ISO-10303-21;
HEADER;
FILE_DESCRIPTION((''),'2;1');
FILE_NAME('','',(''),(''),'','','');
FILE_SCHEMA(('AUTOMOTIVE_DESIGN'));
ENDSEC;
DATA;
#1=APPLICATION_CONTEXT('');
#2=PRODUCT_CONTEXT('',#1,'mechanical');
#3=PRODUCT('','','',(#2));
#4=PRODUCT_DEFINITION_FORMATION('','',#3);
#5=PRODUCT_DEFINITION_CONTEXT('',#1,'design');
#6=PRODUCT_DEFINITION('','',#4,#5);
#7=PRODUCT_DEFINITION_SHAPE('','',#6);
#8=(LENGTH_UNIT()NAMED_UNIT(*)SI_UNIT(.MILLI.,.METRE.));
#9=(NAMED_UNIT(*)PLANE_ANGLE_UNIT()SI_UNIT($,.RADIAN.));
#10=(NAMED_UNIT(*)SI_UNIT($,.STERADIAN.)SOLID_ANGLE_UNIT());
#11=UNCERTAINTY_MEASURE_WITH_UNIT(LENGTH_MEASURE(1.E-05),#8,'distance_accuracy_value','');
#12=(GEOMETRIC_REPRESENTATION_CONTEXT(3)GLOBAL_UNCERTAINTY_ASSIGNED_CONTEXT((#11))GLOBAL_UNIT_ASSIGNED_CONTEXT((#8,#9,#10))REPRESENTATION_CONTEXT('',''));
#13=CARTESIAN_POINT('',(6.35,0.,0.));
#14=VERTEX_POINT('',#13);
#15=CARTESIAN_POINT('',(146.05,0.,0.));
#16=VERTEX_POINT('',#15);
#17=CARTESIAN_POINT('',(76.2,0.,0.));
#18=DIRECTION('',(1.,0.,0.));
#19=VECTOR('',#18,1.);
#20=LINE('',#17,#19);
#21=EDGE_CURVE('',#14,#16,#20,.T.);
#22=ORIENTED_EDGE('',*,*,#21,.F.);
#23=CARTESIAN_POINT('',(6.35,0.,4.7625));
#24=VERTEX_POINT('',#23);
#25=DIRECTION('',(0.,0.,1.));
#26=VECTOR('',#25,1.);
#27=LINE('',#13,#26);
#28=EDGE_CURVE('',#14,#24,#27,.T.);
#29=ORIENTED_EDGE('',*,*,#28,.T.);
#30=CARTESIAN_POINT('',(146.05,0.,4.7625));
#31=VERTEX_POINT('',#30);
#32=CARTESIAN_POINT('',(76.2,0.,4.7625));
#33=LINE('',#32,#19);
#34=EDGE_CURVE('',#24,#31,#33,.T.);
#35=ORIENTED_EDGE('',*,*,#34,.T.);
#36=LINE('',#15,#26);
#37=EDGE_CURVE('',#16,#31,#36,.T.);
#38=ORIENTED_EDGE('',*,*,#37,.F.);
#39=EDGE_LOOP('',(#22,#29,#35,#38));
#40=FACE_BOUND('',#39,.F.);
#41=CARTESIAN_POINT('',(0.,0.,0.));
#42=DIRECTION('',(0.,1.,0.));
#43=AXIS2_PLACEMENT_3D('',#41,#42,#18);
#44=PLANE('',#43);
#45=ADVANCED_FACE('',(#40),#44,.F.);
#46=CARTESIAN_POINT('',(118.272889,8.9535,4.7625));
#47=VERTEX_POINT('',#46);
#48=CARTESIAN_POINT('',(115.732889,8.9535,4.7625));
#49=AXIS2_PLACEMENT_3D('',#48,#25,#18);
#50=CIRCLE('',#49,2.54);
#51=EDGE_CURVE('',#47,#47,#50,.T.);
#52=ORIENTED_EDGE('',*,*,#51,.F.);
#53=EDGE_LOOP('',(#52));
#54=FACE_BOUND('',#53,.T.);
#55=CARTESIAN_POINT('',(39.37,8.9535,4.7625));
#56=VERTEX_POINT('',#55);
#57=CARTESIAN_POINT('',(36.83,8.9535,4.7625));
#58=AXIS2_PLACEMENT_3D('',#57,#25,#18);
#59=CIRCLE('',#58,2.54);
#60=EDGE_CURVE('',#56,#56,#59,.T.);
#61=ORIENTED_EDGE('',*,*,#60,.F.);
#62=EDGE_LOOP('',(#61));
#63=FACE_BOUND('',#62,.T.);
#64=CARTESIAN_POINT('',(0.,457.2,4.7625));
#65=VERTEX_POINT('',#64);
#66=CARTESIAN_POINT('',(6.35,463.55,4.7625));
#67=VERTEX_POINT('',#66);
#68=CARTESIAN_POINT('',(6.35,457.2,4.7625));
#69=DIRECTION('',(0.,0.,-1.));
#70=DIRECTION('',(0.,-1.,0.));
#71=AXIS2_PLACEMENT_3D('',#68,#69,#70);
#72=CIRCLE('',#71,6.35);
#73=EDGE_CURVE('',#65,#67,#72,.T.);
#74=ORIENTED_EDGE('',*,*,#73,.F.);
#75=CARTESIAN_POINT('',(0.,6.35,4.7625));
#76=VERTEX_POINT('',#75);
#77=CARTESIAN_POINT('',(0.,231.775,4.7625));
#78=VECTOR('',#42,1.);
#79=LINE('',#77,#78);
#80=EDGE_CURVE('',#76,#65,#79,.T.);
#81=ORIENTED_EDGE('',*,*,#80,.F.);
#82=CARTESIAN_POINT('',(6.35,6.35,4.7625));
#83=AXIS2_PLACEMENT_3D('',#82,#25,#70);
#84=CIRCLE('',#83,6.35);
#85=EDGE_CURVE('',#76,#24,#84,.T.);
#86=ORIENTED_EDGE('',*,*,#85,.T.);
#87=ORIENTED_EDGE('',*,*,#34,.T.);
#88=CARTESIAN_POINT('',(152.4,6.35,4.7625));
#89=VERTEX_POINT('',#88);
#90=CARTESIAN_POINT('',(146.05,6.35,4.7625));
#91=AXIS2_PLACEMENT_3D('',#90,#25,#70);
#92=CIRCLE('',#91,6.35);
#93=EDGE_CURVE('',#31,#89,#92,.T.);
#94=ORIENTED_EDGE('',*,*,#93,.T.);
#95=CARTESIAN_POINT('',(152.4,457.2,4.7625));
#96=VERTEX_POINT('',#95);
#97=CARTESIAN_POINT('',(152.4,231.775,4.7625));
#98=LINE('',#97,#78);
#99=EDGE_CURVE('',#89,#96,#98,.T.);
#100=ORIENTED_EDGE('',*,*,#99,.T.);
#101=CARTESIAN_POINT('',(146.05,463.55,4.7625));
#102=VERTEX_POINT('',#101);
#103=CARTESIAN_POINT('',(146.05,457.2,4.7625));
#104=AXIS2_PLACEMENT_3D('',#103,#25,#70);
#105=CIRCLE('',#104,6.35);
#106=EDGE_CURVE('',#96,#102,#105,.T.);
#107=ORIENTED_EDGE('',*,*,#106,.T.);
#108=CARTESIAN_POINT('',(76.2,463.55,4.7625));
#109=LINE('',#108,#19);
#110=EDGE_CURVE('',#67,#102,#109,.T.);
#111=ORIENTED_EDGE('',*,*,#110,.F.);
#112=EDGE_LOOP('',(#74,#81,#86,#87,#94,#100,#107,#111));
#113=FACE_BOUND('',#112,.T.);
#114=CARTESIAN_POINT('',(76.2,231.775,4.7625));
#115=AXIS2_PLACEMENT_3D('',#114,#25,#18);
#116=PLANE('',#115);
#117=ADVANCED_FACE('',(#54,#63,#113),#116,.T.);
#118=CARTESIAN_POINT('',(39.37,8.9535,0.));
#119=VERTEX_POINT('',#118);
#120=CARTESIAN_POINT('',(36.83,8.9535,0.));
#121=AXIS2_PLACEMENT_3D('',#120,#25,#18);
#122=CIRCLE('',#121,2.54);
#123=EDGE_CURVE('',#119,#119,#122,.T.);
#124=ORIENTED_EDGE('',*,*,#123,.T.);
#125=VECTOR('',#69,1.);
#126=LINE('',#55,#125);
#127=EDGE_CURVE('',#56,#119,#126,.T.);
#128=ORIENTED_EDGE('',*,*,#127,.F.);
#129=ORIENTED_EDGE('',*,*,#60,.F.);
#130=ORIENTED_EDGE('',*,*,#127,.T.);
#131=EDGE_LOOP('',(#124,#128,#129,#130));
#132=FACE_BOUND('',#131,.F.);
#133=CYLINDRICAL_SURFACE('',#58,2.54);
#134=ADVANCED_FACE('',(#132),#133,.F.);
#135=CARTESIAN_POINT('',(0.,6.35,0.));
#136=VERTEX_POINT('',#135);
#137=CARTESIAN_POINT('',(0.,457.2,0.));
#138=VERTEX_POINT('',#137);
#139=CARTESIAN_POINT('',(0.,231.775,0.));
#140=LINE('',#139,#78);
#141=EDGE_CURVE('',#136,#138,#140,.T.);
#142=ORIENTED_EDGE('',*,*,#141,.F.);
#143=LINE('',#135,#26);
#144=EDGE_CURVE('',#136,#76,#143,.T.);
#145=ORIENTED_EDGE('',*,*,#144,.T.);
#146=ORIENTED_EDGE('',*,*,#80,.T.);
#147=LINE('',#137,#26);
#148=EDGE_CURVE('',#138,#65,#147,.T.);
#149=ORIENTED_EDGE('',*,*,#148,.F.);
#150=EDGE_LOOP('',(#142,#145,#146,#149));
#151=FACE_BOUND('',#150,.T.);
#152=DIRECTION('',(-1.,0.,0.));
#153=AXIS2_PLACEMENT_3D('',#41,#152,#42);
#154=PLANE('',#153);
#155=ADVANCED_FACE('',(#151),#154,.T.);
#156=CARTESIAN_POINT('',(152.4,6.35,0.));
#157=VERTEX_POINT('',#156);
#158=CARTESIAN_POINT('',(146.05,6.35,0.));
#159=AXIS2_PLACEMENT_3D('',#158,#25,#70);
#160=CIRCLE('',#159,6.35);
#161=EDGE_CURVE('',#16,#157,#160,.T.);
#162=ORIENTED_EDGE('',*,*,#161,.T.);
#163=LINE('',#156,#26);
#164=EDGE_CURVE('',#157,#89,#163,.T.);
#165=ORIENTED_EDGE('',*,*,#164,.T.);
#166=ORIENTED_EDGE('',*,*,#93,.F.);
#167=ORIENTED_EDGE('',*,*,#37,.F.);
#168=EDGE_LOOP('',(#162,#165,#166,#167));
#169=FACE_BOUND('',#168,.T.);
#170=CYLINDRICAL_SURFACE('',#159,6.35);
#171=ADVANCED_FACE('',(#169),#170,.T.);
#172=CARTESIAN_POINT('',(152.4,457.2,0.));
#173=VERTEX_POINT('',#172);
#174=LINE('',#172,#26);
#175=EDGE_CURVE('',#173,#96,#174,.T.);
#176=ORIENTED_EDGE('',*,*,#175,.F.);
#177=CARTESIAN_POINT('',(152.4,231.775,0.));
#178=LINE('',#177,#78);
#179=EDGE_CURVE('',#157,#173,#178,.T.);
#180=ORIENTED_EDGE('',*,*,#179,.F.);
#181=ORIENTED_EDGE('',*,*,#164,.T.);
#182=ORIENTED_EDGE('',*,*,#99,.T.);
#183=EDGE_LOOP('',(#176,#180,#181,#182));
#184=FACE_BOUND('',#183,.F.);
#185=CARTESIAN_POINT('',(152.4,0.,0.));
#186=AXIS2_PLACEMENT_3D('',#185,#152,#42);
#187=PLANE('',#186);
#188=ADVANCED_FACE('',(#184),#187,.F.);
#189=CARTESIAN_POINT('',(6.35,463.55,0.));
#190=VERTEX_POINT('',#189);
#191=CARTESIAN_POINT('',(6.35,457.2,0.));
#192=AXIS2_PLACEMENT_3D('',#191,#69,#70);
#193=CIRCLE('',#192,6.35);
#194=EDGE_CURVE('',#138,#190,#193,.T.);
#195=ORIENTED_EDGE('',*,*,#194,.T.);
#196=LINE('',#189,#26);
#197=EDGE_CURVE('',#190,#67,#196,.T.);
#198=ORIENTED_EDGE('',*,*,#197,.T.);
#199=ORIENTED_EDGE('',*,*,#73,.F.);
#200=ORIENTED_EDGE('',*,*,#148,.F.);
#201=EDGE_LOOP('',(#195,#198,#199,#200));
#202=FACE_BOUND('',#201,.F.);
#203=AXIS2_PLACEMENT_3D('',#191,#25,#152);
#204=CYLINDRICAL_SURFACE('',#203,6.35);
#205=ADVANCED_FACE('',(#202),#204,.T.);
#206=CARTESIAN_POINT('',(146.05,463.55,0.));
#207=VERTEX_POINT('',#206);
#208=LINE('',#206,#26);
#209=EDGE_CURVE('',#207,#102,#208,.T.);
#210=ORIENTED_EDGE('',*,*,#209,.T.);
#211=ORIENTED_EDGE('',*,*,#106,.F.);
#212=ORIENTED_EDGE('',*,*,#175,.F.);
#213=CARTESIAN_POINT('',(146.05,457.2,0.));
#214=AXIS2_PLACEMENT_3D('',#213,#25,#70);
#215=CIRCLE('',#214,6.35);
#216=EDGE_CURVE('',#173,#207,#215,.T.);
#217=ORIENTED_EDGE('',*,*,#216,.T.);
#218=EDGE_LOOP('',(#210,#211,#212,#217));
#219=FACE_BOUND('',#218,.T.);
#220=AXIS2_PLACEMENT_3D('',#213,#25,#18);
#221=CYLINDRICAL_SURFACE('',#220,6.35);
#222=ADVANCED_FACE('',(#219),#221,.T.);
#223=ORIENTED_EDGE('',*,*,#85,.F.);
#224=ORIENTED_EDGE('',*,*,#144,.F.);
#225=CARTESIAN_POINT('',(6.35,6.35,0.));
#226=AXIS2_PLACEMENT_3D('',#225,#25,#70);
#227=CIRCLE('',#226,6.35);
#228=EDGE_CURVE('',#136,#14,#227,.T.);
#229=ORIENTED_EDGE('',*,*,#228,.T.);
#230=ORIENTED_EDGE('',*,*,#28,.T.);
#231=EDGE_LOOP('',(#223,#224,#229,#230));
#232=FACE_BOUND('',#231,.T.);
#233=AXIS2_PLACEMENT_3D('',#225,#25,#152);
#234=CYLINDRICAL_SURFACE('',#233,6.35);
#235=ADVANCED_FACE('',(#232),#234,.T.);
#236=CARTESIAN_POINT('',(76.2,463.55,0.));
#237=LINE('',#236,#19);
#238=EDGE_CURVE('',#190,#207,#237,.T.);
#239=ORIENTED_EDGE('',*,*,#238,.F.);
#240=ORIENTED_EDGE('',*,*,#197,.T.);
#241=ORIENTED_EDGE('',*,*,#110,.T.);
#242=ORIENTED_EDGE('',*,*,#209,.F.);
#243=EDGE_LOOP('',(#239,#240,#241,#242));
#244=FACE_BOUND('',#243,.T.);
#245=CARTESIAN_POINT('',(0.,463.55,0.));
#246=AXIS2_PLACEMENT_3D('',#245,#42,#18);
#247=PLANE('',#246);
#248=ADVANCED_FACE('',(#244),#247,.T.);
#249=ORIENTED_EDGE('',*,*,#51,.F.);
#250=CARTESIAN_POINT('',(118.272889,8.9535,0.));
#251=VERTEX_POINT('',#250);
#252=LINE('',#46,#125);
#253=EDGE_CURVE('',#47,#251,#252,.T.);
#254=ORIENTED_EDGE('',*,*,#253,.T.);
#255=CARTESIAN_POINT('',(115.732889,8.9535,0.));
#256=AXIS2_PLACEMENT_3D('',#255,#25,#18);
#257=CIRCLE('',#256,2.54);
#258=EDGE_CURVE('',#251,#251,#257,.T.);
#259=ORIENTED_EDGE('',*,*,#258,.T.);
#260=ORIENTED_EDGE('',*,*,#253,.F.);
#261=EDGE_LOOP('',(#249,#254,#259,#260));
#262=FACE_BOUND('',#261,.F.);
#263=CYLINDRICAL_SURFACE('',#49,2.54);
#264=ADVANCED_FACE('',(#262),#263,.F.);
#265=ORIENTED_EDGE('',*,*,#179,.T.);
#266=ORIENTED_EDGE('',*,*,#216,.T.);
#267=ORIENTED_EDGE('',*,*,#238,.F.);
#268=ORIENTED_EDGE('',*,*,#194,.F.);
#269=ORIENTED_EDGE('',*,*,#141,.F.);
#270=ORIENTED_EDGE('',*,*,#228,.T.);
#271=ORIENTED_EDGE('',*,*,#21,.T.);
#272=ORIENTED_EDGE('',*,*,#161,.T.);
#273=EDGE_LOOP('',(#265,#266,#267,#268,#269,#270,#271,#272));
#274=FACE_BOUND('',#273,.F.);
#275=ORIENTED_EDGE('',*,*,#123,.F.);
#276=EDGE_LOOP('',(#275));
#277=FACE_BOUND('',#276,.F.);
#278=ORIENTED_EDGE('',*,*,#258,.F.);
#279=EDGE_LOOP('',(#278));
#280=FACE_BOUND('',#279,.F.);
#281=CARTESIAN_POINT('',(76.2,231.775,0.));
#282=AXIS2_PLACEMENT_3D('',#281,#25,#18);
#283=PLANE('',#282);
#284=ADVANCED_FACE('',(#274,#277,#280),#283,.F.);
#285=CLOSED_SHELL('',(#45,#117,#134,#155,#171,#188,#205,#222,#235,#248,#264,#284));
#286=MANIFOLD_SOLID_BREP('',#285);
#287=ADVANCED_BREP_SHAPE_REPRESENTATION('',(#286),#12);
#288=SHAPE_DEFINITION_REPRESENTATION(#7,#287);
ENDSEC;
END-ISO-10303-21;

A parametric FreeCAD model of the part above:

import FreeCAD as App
import Part
import Sketcher
from FreeCAD import Vector
Q = App.Units.Quantity


def edges_at(feature, points):
    """Names of the edges that pass closest to the given points."""
    edges = feature.Shape.Edges
    near = lambda p: min(range(len(edges)), key=lambda i: edges[i].distToShape(Part.Vertex(*p))[0])
    return sorted({f"Edge{near(p) + 1}" for p in points})


def add_polygon(sketch, points):
    """Adds a closed chain of lines whose ends are joined by coincident constraints."""
    first, n = sketch.GeometryCount, len(points)
    for a, b in zip(points, points[1:] + points[:1]):
        sketch.addGeometry(Part.LineSegment(App.Vector(*a, 0), App.Vector(*b, 0)), False)
    for i in range(n):
        sketch.addConstraint(Sketcher.Constraint("Coincident", first + i, 2, first + (i + 1) % n, 1))

doc = App.newDocument("Part")
body = doc.addObject("PartDesign::Body", "Body")

sketch1 = body.newObject("Sketcher::SketchObject", "Sketch")
sketch1.AttachmentSupport = (doc.getObject("XY_Plane"), [""])
sketch1.MapMode = "FlatFace"
add_polygon(sketch1, [(0, 464), (0, 0), (152, 0), (152, 464)])
sketch1.addConstraint(Sketcher.Constraint("Vertical", 0))
sketch1.addConstraint(Sketcher.Constraint("Horizontal", 1))
sketch1.addConstraint(Sketcher.Constraint("Vertical", 2))
sketch1.addConstraint(Sketcher.Constraint("Horizontal", 3))
sketch1.addConstraint(Sketcher.Constraint("Coincident", 0, 2, -1, 1))
sketch1.addConstraint(Sketcher.Constraint("DistanceX", 1, 1, 1, 2, Q("6 in")))
sketch1.addConstraint(Sketcher.Constraint("DistanceY", 0, 2, 0, 1, Q("18.25 in")))
pad1 = body.newObject("PartDesign::Pad", "Pad")
pad1.Profile = sketch1
pad1.Length = Q("0.1875 in")
doc.recompute()

fillet = body.newObject("PartDesign::Fillet", "Fillet")
fillet.Base = (pad1, edges_at(pad1, [
    (0, 463.55, 2.381),
    (152.4, 463.55, 2.381),
    (152.4, 0, 2.381),
    (0, 0, 2.381),
]))
fillet.Radius = Q("0.25 in")

sketch2 = body.newObject("Sketcher::SketchObject", "Sketch001")
sketch2.AttachmentSupport = (doc.getObject("XY_Plane"), [""])
sketch2.MapMode = "FlatFace"
sketch2.AttachmentOffset = App.Placement(Vector(0, 0, 0.1875 * 25.4), App.Rotation())
sketch2.addGeometry(Part.Circle(Vector(36.8, 9, 0), Vector(0, 0, 1), 2.5), False)
sketch2.addGeometry(Part.Circle(Vector(115.7, 9, 0), Vector(0, 0, 1), 2.5), False)
sketch2.addConstraint(Sketcher.Constraint("Equal", 0, 1))
sketch2.addConstraint(Sketcher.Constraint("Horizontal", 0, 3, 1, 3))
sketch2.addConstraint(Sketcher.Constraint("Diameter", 0, Q("0.2 in")))
sketch2.addConstraint(Sketcher.Constraint("DistanceX", -1, 1, 0, 3, Q("1.45 in")))
sketch2.addConstraint(Sketcher.Constraint("DistanceY", -1, 1, 0, 3, Q("0.3525 in")))
sketch2.addConstraint(Sketcher.Constraint("DistanceX", -1, 1, 1, 3, 115.732889))
pocket1 = body.newObject("PartDesign::Pocket", "Pocket")
pocket1.Profile = sketch2
pocket1.Length = Q("0.3 in")

doc.recompute()
